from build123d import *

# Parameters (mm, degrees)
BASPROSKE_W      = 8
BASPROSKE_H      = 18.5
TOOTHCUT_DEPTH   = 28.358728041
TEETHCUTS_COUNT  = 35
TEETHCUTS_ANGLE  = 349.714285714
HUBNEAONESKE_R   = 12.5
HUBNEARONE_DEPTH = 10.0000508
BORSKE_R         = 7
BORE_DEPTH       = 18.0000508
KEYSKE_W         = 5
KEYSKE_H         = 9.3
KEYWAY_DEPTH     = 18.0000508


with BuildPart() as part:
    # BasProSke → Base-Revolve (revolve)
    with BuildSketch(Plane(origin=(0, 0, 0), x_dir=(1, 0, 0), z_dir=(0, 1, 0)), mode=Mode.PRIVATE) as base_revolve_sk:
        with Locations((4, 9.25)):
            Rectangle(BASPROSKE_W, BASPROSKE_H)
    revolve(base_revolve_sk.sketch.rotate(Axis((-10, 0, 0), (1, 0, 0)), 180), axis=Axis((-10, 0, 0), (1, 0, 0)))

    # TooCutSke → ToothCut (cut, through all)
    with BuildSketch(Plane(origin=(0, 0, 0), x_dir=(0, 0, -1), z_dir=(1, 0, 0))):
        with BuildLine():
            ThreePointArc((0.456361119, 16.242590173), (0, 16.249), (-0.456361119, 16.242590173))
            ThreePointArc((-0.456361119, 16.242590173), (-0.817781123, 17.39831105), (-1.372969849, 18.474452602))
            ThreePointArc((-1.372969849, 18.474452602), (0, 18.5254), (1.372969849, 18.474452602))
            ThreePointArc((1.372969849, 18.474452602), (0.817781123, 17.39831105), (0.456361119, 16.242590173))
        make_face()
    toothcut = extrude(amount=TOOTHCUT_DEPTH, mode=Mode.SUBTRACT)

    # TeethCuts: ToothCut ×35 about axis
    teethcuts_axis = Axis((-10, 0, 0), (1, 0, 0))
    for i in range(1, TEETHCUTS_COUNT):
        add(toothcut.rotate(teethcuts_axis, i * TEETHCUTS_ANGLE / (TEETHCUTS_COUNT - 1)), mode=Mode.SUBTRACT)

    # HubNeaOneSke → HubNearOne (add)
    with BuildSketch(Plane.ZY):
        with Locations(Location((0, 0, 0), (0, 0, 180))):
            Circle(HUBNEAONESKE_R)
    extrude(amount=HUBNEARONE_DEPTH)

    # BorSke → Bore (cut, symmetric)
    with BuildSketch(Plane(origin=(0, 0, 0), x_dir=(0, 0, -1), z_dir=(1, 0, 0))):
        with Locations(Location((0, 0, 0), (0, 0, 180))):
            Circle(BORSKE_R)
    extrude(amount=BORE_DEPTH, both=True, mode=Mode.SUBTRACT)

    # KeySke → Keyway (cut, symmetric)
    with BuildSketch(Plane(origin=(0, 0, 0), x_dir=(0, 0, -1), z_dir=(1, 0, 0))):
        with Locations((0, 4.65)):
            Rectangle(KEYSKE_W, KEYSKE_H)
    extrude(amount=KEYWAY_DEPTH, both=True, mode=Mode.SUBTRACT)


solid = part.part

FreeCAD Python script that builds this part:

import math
import FreeCAD as App
import Part
import Sketcher

V = App.Vector


def add_polygon(sketch, points):
    """Adds a closed chain of lines whose ends are joined by coincident constraints."""
    first, n = sketch.GeometryCount, len(points)
    for a, b in zip(points, points[1:] + points[:1]):
        sketch.addGeometry(Part.LineSegment(App.Vector(*a, 0), App.Vector(*b, 0)), False)
    for i in range(n):
        sketch.addConstraint(Sketcher.Constraint("Coincident", first + i, 2, first + (i + 1) % n, 1))

doc = App.newDocument("Part")
body = doc.addObject("PartDesign::Body", "Body")

# Sketch on XZ plane
sketch1 = body.newObject("Sketcher::SketchObject", "Sketch")
sketch1.AttachmentSupport = (doc.getObject("XZ_Plane"), [""])
sketch1.MapMode = "FlatFace"
add_polygon(sketch1, [(0, -18), (0, 0), (8, 0), (8, -18)])  # lines 0-3
sketch1.addConstraint(Sketcher.Constraint("Vertical", 0))
sketch1.addConstraint(Sketcher.Constraint("Horizontal", 1))
sketch1.addConstraint(Sketcher.Constraint("Vertical", 2))
sketch1.addConstraint(Sketcher.Constraint("Horizontal", 3))
sketch1.addConstraint(Sketcher.Constraint("Coincident", 0, 2, -1, 1))
sketch1.addConstraint(Sketcher.Constraint("DistanceX", 1, 1, 1, 2, 8.0))
sketch1.addConstraint(Sketcher.Constraint("DistanceY", 0, 1, 0, 2, 18.5))
revolution = body.newObject("PartDesign::Revolution", "Revolution")
revolution.Profile = sketch1
revolution.ReferenceAxis = (sketch1, ["H_Axis"])
revolution.Angle = 360

# Sketch on YZ plane
sketch2 = body.newObject("Sketcher::SketchObject", "Sketch001")
sketch2.AttachmentSupport = (doc.getObject("YZ_Plane"), [""])
sketch2.MapMode = "FlatFace"
sketch2.addGeometry(Part.ArcOfCircle(Part.Circle(V(0, 0, 0), V(0, 0, 1), 16.2), math.radians(-1.61), math.radians(1.61)), False)
sketch2.addGeometry(Part.ArcOfCircle(Part.Circle(V(14.7, -7.3, 0), V(0, 0, 1), 7), math.radians(57.75), math.radians(77.6)), False)
sketch2.addGeometry(Part.ArcOfCircle(Part.Circle(V(0, 0, 0), V(0, 0, 1), 18.5), math.radians(-4.25), math.radians(4.25)), False)
sketch2.addGeometry(Part.ArcOfCircle(Part.Circle(V(14.7, 7.3, 0), V(0, 0, 1), 7), math.radians(-77.6), math.radians(-57.75)), False)
sketch2.addConstraint(Sketcher.Constraint("Coincident", 0, 1, 1, 2))
sketch2.addConstraint(Sketcher.Constraint("Coincident", 1, 1, 2, 1))
sketch2.addConstraint(Sketcher.Constraint("Coincident", 2, 2, 3, 2))
sketch2.addConstraint(Sketcher.Constraint("Coincident", 3, 1, 0, 2))
sketch2.addConstraint(Sketcher.Constraint("Coincident", 0, 3, -1, 1))
sketch2.addConstraint(Sketcher.Constraint("Coincident", 2, 3, -1, 1))
sketch2.addConstraint(Sketcher.Constraint("Equal", 1, 3))
sketch2.addConstraint(Sketcher.Constraint("Symmetric", 1, 3, 3, 3, -1))
sketch2.addConstraint(Sketcher.Constraint("Radius", 1, 7.0))
sketch2.addConstraint(Sketcher.Constraint("Radius", 0, 16.249))
sketch2.addConstraint(Sketcher.Constraint("Radius", 2, 18.5254))
sketch2.addConstraint(Sketcher.Constraint("DistanceY", 1, 3, 1, 1, 5.92))
sketch2.addConstraint(Sketcher.Constraint("DistanceX", -1, 1, 1, 3, 14.739001))
pocket1 = body.newObject("PartDesign::Pocket", "Pocket")
pocket1.Profile = sketch2
pocket1.Type = "ThroughAll"
pocket1.Reversed = True
doc.recompute()

polarpattern = body.newObject("PartDesign::PolarPattern", "PolarPattern")
polarpattern.Originals = [pocket1]
polarpattern.Axis = (doc.getObject("X_Axis"), [""])
polarpattern.Angle = 360
polarpattern.Occurrences = 35
body.Tip = polarpattern

# Sketch on YZ plane
sketch3 = body.newObject("Sketcher::SketchObject", "Sketch002")
sketch3.AttachmentSupport = (doc.getObject("YZ_Plane"), [""])
sketch3.MapMode = "FlatFace"
sketch3.addGeometry(Part.Circle(V(0, 0, 0), V(0, 0, 1), 12), False)
sketch3.addConstraint(Sketcher.Constraint("Coincident", 0, 3, -1, 1))
sketch3.addConstraint(Sketcher.Constraint("Diameter", 0, 25.0))
pad1 = body.newObject("PartDesign::Pad", "Pad")
pad1.Profile = sketch3
pad1.Length = 10.000051
pad1.Reversed = True

# Sketch on YZ plane
sketch4 = body.newObject("Sketcher::SketchObject", "Sketch003")
sketch4.AttachmentSupport = (doc.getObject("YZ_Plane"), [""])
sketch4.MapMode = "FlatFace"
sketch4.addGeometry(Part.Circle(V(0, 0, 0), V(0, 0, 1), 7), False)
sketch4.addConstraint(Sketcher.Constraint("Coincident", 0, 3, -1, 1))
sketch4.addConstraint(Sketcher.Constraint("Diameter", 0, 14.0))
pocket2 = body.newObject("PartDesign::Pocket", "Pocket001")
pocket2.Profile = sketch4
pocket2.Length = 36.000102
pocket2.Midplane = True

# Sketch on YZ plane
sketch5 = body.newObject("Sketcher::SketchObject", "Sketch004")
sketch5.AttachmentSupport = (doc.getObject("YZ_Plane"), [""])
sketch5.MapMode = "FlatFace"
add_polygon(sketch5, [(9, 2), (0, 2), (0, -2), (9, -2)])  # lines 0-3
sketch5.addConstraint(Sketcher.Constraint("Horizontal", 0))
sketch5.addConstraint(Sketcher.Constraint("Vertical", 1))
sketch5.addConstraint(Sketcher.Constraint("Horizontal", 2))
sketch5.addConstraint(Sketcher.Constraint("Vertical", 3))
sketch5.addConstraint(Sketcher.Constraint("Symmetric", 0, 2, 1, 2, -1, 1))
sketch5.addConstraint(Sketcher.Constraint("DistanceY", 1, 2, 1, 1, 5.0))
sketch5.addConstraint(Sketcher.Constraint("DistanceX", 0, 2, 0, 1, 9.3))
pocket3 = body.newObject("PartDesign::Pocket", "Pocket002")
pocket3.Profile = sketch5
pocket3.Length = 36.000102
pocket3.Midplane = True

doc.recompute()
